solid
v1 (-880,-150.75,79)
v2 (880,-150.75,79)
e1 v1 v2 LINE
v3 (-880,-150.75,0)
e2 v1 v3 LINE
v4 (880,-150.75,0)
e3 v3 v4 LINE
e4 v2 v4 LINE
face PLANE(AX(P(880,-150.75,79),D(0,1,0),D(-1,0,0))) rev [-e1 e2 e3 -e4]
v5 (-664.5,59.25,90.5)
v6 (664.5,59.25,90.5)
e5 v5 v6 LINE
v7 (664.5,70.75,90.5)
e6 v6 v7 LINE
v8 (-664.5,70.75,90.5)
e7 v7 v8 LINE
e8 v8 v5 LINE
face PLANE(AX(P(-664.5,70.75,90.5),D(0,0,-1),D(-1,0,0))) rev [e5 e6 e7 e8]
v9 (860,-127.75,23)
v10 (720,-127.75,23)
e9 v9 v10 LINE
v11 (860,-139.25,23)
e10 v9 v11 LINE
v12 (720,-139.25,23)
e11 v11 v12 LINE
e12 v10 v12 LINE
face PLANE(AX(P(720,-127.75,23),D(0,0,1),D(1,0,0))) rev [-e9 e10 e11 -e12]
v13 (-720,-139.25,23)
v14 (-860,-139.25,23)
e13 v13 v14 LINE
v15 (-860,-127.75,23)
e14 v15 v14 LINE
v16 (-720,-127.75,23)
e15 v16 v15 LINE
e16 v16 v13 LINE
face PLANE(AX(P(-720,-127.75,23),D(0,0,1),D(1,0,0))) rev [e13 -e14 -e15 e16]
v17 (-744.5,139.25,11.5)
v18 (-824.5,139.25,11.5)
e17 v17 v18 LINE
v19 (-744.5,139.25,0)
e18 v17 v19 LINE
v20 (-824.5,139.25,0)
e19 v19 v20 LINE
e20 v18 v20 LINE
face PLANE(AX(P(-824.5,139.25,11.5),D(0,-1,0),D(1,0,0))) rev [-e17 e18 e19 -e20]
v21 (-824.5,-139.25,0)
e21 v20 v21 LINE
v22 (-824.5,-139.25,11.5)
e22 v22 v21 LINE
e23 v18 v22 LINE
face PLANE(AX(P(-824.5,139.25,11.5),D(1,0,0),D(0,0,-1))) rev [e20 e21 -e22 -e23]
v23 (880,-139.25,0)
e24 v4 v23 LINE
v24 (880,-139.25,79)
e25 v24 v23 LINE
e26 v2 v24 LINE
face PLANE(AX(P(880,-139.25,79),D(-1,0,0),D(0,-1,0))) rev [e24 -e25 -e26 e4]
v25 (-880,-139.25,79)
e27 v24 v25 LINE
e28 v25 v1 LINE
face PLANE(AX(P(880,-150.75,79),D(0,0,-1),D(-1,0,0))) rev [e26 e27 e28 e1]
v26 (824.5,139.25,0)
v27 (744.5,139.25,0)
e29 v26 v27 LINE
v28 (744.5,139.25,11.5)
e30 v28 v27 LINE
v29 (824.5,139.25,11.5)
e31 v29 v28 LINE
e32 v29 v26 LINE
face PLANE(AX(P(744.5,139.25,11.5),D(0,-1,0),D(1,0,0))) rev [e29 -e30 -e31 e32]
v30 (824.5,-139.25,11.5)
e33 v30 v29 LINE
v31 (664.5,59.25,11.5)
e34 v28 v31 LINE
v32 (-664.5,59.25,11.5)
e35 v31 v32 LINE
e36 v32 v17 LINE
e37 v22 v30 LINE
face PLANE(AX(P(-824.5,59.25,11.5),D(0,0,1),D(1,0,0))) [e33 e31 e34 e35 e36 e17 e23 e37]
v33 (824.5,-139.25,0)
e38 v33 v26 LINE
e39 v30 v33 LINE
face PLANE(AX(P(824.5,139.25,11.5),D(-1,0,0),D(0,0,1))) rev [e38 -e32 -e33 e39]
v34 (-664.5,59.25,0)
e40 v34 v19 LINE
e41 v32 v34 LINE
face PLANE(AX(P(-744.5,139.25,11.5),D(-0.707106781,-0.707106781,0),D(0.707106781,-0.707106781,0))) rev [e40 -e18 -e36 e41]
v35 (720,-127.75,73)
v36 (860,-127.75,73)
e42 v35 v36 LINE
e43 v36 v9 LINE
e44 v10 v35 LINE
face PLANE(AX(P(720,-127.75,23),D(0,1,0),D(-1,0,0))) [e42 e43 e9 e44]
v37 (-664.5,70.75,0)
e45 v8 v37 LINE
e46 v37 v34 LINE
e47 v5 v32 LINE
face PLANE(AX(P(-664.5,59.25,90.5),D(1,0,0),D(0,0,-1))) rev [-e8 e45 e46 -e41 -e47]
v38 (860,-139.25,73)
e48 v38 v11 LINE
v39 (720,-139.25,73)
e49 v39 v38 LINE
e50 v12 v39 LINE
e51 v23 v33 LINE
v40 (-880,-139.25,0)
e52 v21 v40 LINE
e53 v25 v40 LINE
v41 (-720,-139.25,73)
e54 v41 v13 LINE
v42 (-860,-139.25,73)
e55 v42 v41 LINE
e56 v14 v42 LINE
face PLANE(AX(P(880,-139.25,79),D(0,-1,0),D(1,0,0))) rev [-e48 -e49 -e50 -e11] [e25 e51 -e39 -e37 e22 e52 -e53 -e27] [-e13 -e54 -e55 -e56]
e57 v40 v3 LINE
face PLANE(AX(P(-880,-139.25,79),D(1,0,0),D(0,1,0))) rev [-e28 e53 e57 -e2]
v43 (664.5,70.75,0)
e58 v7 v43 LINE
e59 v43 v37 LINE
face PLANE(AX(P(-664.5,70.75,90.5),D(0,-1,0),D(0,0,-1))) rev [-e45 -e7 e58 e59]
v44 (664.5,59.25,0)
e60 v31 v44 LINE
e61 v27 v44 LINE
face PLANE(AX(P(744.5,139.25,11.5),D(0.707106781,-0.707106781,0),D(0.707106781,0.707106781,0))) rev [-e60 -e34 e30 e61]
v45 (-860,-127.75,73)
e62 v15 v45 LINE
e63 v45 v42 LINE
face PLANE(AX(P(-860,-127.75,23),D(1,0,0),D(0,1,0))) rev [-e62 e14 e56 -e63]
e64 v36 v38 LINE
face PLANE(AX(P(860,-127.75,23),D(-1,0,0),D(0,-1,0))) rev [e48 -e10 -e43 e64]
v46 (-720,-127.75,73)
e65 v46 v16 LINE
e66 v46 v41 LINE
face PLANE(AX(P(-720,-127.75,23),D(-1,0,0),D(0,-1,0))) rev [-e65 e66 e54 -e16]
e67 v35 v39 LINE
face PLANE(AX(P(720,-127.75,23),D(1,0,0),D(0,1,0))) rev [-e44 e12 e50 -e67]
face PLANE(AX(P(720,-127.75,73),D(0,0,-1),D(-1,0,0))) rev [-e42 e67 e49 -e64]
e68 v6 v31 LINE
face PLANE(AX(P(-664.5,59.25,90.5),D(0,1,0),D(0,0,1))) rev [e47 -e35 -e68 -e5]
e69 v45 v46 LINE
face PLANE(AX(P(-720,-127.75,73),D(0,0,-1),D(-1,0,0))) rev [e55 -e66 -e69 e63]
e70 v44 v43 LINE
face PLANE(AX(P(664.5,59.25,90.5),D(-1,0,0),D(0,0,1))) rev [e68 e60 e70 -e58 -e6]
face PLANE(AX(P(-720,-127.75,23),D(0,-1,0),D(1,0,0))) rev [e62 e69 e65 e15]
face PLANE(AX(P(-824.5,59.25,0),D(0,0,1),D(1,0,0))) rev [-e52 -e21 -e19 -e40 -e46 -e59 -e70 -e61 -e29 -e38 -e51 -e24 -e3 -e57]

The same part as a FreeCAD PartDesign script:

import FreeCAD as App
import Part
import Sketcher

V = App.Vector

doc = App.newDocument("Part")
body = doc.addObject("PartDesign::Body", "Body")

# Sketch on XY plane
sketch1 = body.newObject("Sketcher::SketchObject", "Sketch")
sketch1.AttachmentSupport = (doc.getObject("XY_Plane"), [""])
sketch1.MapMode = "FlatFace"
sketch1.addGeometry(Part.LineSegment(V(-664, 59, 0), V(-744, 139, 0)), False)
sketch1.addGeometry(Part.LineSegment(V(-744, 139, 0), V(-824, 139, 0)), False)
sketch1.addGeometry(Part.LineSegment(V(-824, 139, 0), V(-824, -139, 0)), False)
sketch1.addGeometry(Part.LineSegment(V(-824, -139, 0), V(824, -139, 0)), False)
sketch1.addGeometry(Part.LineSegment(V(824, -139, 0), V(824, 139, 0)), False)
sketch1.addGeometry(Part.LineSegment(V(824, 139, 0), V(744, 139, 0)), False)
sketch1.addGeometry(Part.LineSegment(V(744, 139, 0), V(664, 59, 0)), False)
sketch1.addGeometry(Part.LineSegment(V(664, 59, 0), V(-664, 59, 0)), False)
sketch1.addConstraint(Sketcher.Constraint("Coincident", 0, 2, 1, 1))
sketch1.addConstraint(Sketcher.Constraint("Coincident", 1, 2, 2, 1))
sketch1.addConstraint(Sketcher.Constraint("Coincident", 2, 2, 3, 1))
sketch1.addConstraint(Sketcher.Constraint("Coincident", 3, 2, 4, 1))
sketch1.addConstraint(Sketcher.Constraint("Coincident", 4, 2, 5, 1))
sketch1.addConstraint(Sketcher.Constraint("Coincident", 5, 2, 6, 1))
sketch1.addConstraint(Sketcher.Constraint("Coincident", 6, 2, 7, 1))
sketch1.addConstraint(Sketcher.Constraint("Coincident", 7, 2, 0, 1))
sketch1.addConstraint(Sketcher.Constraint("Horizontal", 1))
sketch1.addConstraint(Sketcher.Constraint("Vertical", 2))
sketch1.addConstraint(Sketcher.Constraint("Horizontal", 3))
sketch1.addConstraint(Sketcher.Constraint("Vertical", 4))
sketch1.addConstraint(Sketcher.Constraint("Horizontal", 5))
sketch1.addConstraint(Sketcher.Constraint("Horizontal", 7))
sketch1.addConstraint(Sketcher.Constraint("Symmetric", 1, 2, 3, 2, -1, 1))
sketch1.addConstraint(Sketcher.Constraint("Symmetric", 0, 2, 5, 2, -2))
sketch1.addConstraint(Sketcher.Constraint("Perpendicular", 0, 6))
sketch1.addConstraint(Sketcher.Constraint("Equal", 0, 6))
sketch1.addConstraint(Sketcher.Constraint("DistanceX", 1, 2, 1, 1, 80.0))
sketch1.addConstraint(Sketcher.Constraint("DistanceX", 3, 1, 3, 2, 1649.0))
sketch1.addConstraint(Sketcher.Constraint("DistanceX", 7, 2, 7, 1, 1329.0))
sketch1.addConstraint(Sketcher.Constraint("DistanceY", 2, 2, 2, 1, 278.5))
pad1 = body.newObject("PartDesign::Pad", "Pad")
pad1.Profile = sketch1
pad1.Length = 11.5

# Sketch on XY plane
sketch2 = body.newObject("Sketcher::SketchObject", "Sketch001")
sketch2.AttachmentSupport = (doc.getObject("XY_Plane"), [""])
sketch2.MapMode = "FlatFace"
sketch2.AttachmentOffset = App.Placement(V(0, 0, 11.5), App.Rotation())
sketch2.addGeometry(Part.LineSegment(V(-664, 71, 0), V(-664, 59, 0)), False)
sketch2.addGeometry(Part.LineSegment(V(-664, 59, 0), V(664, 59, 0)), False)
sketch2.addGeometry(Part.LineSegment(V(664, 59, 0), V(664, 71, 0)), False)
sketch2.addGeometry(Part.LineSegment(V(664, 71, 0), V(-664, 71, 0)), False)
sketch2.addConstraint(Sketcher.Constraint("Coincident", 0, 2, 1, 1))
sketch2.addConstraint(Sketcher.Constraint("Coincident", 1, 2, 2, 1))
sketch2.addConstraint(Sketcher.Constraint("Coincident", 2, 2, 3, 1))
sketch2.addConstraint(Sketcher.Constraint("Coincident", 3, 2, 0, 1))
sketch2.addConstraint(Sketcher.Constraint("Vertical", 0))
sketch2.addConstraint(Sketcher.Constraint("Horizontal", 1))
sketch2.addConstraint(Sketcher.Constraint("Vertical", 2))
sketch2.addConstraint(Sketcher.Constraint("Horizontal", 3))
sketch2.addConstraint(Sketcher.Constraint("DistanceX", 1, 1, 1, 2, 1329.0))
sketch2.addConstraint(Sketcher.Constraint("DistanceY", 0, 2, 0, 1, 11.5))
sketch2.addConstraint(Sketcher.Constraint("DistanceX", 0, 2, -1, 1, 664.5))
sketch2.addConstraint(Sketcher.Constraint("DistanceY", -1, 1, 0, 2, 59.25))
pad2 = body.newObject("PartDesign::Pad", "Pad001")
pad2.Profile = sketch2
pad2.Type = "TwoLengths"
pad2.Length = 79
pad2.Length2 = 11.5

# Sketch on XY plane
sketch3 = body.newObject("Sketcher::SketchObject", "Sketch002")
sketch3.AttachmentSupport = (doc.getObject("XY_Plane"), [""])
sketch3.MapMode = "FlatFace"
sketch3.AttachmentOffset = App.Placement(V(0, 0, 11.5), App.Rotation())
sketch3.addGeometry(Part.LineSegment(V(-880, -139, 0), V(-880, -151, 0)), False)
sketch3.addGeometry(Part.LineSegment(V(-880, -151, 0), V(880, -151, 0)), False)
sketch3.addGeometry(Part.LineSegment(V(880, -151, 0), V(880, -139, 0)), False)
sketch3.addGeometry(Part.LineSegment(V(880, -139, 0), V(-880, -139, 0)), False)
sketch3.addConstraint(Sketcher.Constraint("Coincident", 0, 2, 1, 1))
sketch3.addConstraint(Sketcher.Constraint("Coincident", 1, 2, 2, 1))
sketch3.addConstraint(Sketcher.Constraint("Coincident", 2, 2, 3, 1))
sketch3.addConstraint(Sketcher.Constraint("Coincident", 3, 2, 0, 1))
sketch3.addConstraint(Sketcher.Constraint("Vertical", 0))
sketch3.addConstraint(Sketcher.Constraint("Horizontal", 1))
sketch3.addConstraint(Sketcher.Constraint("Vertical", 2))
sketch3.addConstraint(Sketcher.Constraint("Horizontal", 3))
sketch3.addConstraint(Sketcher.Constraint("DistanceX", 1, 1, 1, 2, 1760.0))
sketch3.addConstraint(Sketcher.Constraint("DistanceY", 0, 2, 0, 1, 11.5))
sketch3.addConstraint(Sketcher.Constraint("DistanceX", 0, 2, -1, 1, 880.0))
sketch3.addConstraint(Sketcher.Constraint("DistanceY", 0, 2, -1, 1, 150.75))
pad3 = body.newObject("PartDesign::Pad", "Pad002")
pad3.Profile = sketch3
pad3.Type = "TwoLengths"
pad3.Length = 67.5
pad3.Length2 = 11.5

# Sketch on XZ plane
sketch4 = body.newObject("Sketcher::SketchObject", "Sketch003")
sketch4.AttachmentSupport = (doc.getObject("XZ_Plane"), [""])
sketch4.MapMode = "FlatFace"
sketch4.AttachmentOffset = App.Placement(V(0, 0, 139.25), App.Rotation())
sketch4.addGeometry(Part.LineSegment(V(860, 73, 0), V(860, 23, 0)), False)
sketch4.addGeometry(Part.LineSegment(V(860, 23, 0), V(720, 23, 0)), False)
sketch4.addGeometry(Part.LineSegment(V(720, 23, 0), V(720, 73, 0)), False)
sketch4.addGeometry(Part.LineSegment(V(720, 73, 0), V(860, 73, 0)), False)
sketch4.addGeometry(Part.LineSegment(V(-720, 73, 0), V(-720, 23, 0)), False)
sketch4.addGeometry(Part.LineSegment(V(-720, 23, 0), V(-860, 23, 0)), False)
sketch4.addGeometry(Part.LineSegment(V(-860, 23, 0), V(-860, 73, 0)), False)
sketch4.addGeometry(Part.LineSegment(V(-860, 73, 0), V(-720, 73, 0)), False)
sketch4.addConstraint(Sketcher.Constraint("Coincident", 0, 2, 1, 1))
sketch4.addConstraint(Sketcher.Constraint("Coincident", 1, 2, 2, 1))
sketch4.addConstraint(Sketcher.Constraint("Coincident", 2, 2, 3, 1))
sketch4.addConstraint(Sketcher.Constraint("Coincident", 3, 2, 0, 1))
sketch4.addConstraint(Sketcher.Constraint("Coincident", 4, 2, 5, 1))
sketch4.addConstraint(Sketcher.Constraint("Coincident", 5, 2, 6, 1))
sketch4.addConstraint(Sketcher.Constraint("Coincident", 6, 2, 7, 1))
sketch4.addConstraint(Sketcher.Constraint("Coincident", 7, 2, 4, 1))
sketch4.addConstraint(Sketcher.Constraint("Vertical", 0))
sketch4.addConstraint(Sketcher.Constraint("Horizontal", 1))
sketch4.addConstraint(Sketcher.Constraint("Vertical", 2))
sketch4.addConstraint(Sketcher.Constraint("Horizontal", 3))
sketch4.addConstraint(Sketcher.Constraint("Vertical", 4))
sketch4.addConstraint(Sketcher.Constraint("Horizontal", 5))
sketch4.addConstraint(Sketcher.Constraint("Vertical", 6))
sketch4.addConstraint(Sketcher.Constraint("Horizontal", 7))
sketch4.addConstraint(Sketcher.Constraint("Symmetric", 1, 2, 4, 2, -2))
sketch4.addConstraint(Sketcher.Constraint("Symmetric", 3, 2, 6, 2, -2))
sketch4.addConstraint(Sketcher.Constraint("DistanceX", 1, 2, 1, 1, 140.0))
sketch4.addConstraint(Sketcher.Constraint("DistanceY", 0, 2, 0, 1, 50.0))
sketch4.addConstraint(Sketcher.Constraint("DistanceX", -1, 1, 0, 2, 860.0))
sketch4.addConstraint(Sketcher.Constraint("DistanceY", -1, 1, 0, 2, 23.0))
pad4 = body.newObject("PartDesign::Pad", "Pad003")
pad4.Profile = sketch4
pad4.Length = 11.5
pad4.Reversed = True

doc.recompute()
